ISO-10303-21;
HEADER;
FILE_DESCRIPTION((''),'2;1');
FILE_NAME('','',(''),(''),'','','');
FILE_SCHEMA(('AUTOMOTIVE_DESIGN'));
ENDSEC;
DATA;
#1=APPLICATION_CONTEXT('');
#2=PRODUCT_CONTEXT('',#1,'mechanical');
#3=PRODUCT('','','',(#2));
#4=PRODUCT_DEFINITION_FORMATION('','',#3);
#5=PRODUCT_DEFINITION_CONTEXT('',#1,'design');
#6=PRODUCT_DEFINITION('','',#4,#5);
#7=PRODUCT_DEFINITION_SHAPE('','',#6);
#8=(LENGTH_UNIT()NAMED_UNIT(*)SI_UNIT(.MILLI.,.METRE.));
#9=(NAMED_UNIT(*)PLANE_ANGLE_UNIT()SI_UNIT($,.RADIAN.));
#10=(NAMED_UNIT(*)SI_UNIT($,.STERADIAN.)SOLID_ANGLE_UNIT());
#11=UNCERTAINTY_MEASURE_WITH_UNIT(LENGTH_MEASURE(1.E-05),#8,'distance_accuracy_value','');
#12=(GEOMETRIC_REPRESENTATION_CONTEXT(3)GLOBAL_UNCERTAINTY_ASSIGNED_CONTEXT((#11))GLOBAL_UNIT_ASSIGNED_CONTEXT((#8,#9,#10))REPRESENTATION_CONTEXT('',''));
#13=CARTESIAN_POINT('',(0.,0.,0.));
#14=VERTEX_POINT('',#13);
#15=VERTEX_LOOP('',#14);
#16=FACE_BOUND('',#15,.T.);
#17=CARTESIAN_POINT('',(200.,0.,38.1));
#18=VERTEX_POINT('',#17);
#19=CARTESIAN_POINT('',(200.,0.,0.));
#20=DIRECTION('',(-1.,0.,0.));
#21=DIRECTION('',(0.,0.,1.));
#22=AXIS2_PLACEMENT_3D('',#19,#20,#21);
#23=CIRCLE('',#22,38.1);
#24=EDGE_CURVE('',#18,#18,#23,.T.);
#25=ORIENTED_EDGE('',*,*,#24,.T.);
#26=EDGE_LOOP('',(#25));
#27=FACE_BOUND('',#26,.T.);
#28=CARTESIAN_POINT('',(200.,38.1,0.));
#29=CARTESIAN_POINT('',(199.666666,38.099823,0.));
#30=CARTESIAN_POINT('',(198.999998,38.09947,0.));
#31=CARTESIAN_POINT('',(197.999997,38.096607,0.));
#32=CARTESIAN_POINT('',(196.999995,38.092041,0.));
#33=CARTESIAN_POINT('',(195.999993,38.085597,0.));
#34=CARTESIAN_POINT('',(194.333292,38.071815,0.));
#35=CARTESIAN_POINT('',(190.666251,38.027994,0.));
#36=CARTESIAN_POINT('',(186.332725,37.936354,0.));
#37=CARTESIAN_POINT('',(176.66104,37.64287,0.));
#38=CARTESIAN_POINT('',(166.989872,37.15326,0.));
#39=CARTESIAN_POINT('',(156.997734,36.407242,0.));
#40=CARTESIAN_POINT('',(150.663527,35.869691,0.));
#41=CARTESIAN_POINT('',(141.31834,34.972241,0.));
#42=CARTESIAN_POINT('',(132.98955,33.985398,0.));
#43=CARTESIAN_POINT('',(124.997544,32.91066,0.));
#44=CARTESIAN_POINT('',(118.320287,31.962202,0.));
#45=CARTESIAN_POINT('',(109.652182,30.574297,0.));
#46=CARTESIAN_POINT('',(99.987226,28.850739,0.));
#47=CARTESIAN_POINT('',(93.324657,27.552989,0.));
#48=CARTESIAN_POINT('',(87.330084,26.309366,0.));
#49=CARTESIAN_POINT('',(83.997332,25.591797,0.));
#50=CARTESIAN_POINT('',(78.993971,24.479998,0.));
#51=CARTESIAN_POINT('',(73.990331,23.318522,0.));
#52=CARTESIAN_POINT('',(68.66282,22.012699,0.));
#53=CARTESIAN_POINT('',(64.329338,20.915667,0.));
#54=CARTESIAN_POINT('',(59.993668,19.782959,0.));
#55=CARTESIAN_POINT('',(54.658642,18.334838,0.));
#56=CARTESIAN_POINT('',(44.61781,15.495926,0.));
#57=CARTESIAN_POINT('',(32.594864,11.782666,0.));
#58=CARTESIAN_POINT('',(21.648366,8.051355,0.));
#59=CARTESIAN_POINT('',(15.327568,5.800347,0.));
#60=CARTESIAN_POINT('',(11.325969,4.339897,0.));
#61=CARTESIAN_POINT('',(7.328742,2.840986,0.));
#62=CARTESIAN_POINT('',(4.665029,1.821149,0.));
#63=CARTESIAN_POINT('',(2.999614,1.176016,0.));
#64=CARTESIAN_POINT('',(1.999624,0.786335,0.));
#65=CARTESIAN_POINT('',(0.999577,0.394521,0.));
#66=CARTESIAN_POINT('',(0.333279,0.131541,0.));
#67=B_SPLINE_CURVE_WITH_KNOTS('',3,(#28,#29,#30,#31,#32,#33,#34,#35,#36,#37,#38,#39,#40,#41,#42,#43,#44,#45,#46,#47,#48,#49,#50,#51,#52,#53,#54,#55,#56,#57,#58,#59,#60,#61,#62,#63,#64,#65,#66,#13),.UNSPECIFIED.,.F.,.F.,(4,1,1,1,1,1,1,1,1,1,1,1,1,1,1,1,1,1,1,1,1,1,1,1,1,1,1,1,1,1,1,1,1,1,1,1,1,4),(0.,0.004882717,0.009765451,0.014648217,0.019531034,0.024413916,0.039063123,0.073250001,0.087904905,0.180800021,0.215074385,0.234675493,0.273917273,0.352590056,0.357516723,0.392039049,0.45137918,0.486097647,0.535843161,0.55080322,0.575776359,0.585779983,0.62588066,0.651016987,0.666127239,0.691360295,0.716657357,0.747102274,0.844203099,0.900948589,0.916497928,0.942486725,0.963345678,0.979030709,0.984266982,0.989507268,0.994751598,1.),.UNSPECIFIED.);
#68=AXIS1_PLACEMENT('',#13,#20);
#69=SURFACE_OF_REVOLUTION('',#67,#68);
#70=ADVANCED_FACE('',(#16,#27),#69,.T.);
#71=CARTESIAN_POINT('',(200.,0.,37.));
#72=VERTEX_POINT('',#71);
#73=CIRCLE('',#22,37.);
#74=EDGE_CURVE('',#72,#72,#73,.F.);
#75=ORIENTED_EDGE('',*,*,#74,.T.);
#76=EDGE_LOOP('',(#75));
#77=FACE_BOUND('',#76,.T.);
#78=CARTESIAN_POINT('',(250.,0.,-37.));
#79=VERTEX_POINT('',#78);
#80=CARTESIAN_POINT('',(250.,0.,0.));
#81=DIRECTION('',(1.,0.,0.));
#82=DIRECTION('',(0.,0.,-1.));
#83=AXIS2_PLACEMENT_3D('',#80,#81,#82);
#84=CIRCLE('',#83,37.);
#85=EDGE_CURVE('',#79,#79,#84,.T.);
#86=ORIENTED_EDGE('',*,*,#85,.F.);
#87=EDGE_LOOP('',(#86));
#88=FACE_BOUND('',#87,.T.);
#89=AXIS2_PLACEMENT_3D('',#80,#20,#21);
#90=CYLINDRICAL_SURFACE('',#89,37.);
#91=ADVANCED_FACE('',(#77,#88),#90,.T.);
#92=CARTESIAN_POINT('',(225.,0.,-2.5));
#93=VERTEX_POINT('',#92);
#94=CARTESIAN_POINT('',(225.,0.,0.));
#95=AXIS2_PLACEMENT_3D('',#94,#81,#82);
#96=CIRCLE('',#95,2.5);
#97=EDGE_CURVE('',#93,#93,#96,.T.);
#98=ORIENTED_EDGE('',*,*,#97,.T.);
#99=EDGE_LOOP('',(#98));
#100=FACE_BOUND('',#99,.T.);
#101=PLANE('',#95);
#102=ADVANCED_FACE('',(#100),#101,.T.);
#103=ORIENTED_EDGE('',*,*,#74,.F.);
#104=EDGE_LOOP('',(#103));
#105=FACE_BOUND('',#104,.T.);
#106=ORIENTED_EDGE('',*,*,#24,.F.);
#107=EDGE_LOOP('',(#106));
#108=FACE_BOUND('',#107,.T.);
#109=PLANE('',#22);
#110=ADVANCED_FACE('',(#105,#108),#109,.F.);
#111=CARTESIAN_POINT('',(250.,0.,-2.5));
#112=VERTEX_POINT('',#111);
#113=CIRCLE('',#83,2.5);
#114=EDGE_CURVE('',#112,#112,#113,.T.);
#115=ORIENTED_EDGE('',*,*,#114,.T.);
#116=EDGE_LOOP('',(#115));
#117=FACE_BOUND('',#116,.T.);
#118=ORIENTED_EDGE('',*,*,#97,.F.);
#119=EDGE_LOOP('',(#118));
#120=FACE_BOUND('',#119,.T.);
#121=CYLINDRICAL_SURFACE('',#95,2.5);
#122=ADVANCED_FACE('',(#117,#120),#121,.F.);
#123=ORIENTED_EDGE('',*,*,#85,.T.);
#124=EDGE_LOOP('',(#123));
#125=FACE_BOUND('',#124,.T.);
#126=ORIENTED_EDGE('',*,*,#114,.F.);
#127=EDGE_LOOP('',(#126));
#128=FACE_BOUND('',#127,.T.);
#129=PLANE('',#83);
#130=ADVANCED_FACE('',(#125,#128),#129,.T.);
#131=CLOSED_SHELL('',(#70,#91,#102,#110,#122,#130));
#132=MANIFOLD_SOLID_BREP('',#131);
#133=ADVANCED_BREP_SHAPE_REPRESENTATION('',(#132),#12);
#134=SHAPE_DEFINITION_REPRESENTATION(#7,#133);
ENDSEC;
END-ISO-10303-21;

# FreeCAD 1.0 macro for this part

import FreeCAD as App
import Part
import Sketcher

doc = App.newDocument("Part")
params = doc.addObject("Spreadsheet::Sheet", "Params")
for row, (alias, value) in enumerate([
    ("revolution_angle", "360 deg"),
    ("sketch2_diameter", "74 mm"),
    ("pad1_length", "50 mm"),
    ("sketch3_diameter", "5 mm"),
    ("pocket1_length", "25 mm"),
], start=1):
    params.set(f"A{row}", alias)
    params.set(f"B{row}", "=" + value)
    params.setAlias(f"B{row}", alias)

body = doc.addObject("PartDesign::Body", "Body")

# Sketch on XY plane
sketch1 = body.newObject("Sketcher::SketchObject", "Sketch")
sketch1.AttachmentSupport = (doc.getObject("XY_Plane"), [""])
sketch1.MapMode = "FlatFace"
sketch1.addGeometry([
    Part.LineSegment(App.Vector(0, 0, 0), App.Vector(200, 0, 0)),
    Part.LineSegment(App.Vector(200, 0, 0), App.Vector(200, 38.1, 0)),
    Part.BSplineCurve([App.Vector(0, 0, 0), App.Vector(0.333279, 0.131541, 0), App.Vector(0.999577, 0.394521, 0), App.Vector(1.999624, 0.786335, 0), App.Vector(2.999614, 1.176016, 0), App.Vector(4.665029, 1.821149, 0), App.Vector(7.328742, 2.840986, 0), App.Vector(11.325969, 4.339897, 0), App.Vector(15.327568, 5.800347, 0), App.Vector(21.648366, 8.051355, 0), App.Vector(32.594864, 11.782666, 0), App.Vector(44.61781, 15.495926, 0), App.Vector(54.658642, 18.334838, 0), App.Vector(59.993668, 19.782959, 0), App.Vector(64.329338, 20.915667, 0), App.Vector(68.66282, 22.012699, 0), App.Vector(73.990331, 23.318522, 0), App.Vector(78.993971, 24.479998, 0), App.Vector(83.997332, 25.591797, 0), App.Vector(87.330084, 26.309366, 0), App.Vector(93.324657, 27.552989, 0), App.Vector(99.987226, 28.850739, 0), App.Vector(109.652182, 30.574297, 0), App.Vector(118.320287, 31.962202, 0), App.Vector(124.997544, 32.91066, 0), App.Vector(132.98955, 33.985398, 0), App.Vector(141.31834, 34.972241, 0), App.Vector(150.663527, 35.869691, 0), App.Vector(156.997734, 36.407242, 0), App.Vector(166.989872, 37.15326, 0), App.Vector(176.66104, 37.64287, 0), App.Vector(186.332725, 37.936354, 0), App.Vector(190.666251, 38.027994, 0), App.Vector(194.333292, 38.071815, 0), App.Vector(195.999993, 38.085597, 0), App.Vector(196.999995, 38.092041, 0), App.Vector(197.999997, 38.096607, 0), App.Vector(198.999998, 38.09947, 0), App.Vector(199.666666, 38.099823, 0), App.Vector(200, 38.1, 0)], [4, 1, 1, 1, 1, 1, 1, 1, 1, 1, 1, 1, 1, 1, 1, 1, 1, 1, 1, 1, 1, 1, 1, 1, 1, 1, 1, 1, 1, 1, 1, 1, 1, 1, 1, 1, 1, 4], [0, 0.005248402, 0.010492732, 0.015733018, 0.020969291, 0.036654322, 0.057513275, 0.083502072, 0.099051411, 0.155796901, 0.252897726, 0.283342643, 0.308639705, 0.333872761, 0.348983013, 0.37411934, 0.414220017, 0.424223641, 0.44919678, 0.464156839, 0.513902353, 0.54862082, 0.607960951, 0.642483277, 0.647409944, 0.726082727, 0.765324507, 0.784925615, 0.819199979, 0.912095095, 0.926749999, 0.960936877, 0.975586084, 0.980468966, 0.985351783, 0.990234549, 0.995117283, 1], False, 3, [1, 1, 1, 1, 1, 1, 1, 1, 1, 1, 1, 1, 1, 1, 1, 1, 1, 1, 1, 1, 1, 1, 1, 1, 1, 1, 1, 1, 1, 1, 1, 1, 1, 1, 1, 1, 1, 1, 1, 1], False),
], False)
sketch1.addConstraint([
    Sketcher.Constraint("Block", 2),
    Sketcher.Constraint("Coincident", 0, 2, 1, 1),
    Sketcher.Constraint("Coincident", 1, 2, 2, 2),
    Sketcher.Constraint("Coincident", 2, 1, 0, 1),
    Sketcher.Constraint("Horizontal", 0),
    Sketcher.Constraint("Vertical", 1),
])
revolution = body.newObject("PartDesign::Revolution", "Revolution")
revolution.Profile = sketch1
revolution.ReferenceAxis = (sketch1, ["H_Axis"])
revolution.setExpression("Angle", "Params.revolution_angle")

# Sketch on YZ plane
sketch2 = body.newObject("Sketcher::SketchObject", "Sketch001")
sketch2.AttachmentSupport = (doc.getObject("YZ_Plane"), [""])
sketch2.MapMode = "FlatFace"
sketch2.AttachmentOffset = App.Placement(App.Vector(0, 0, 200), App.Rotation())
sketch2.addGeometry(Part.Circle(App.Vector(0, 0, 0), App.Vector(0, 0, 1), 37), False)
sketch2.addConstraint([
    Sketcher.Constraint("Coincident", 0, 3, -1, 1),
    Sketcher.Constraint("Diameter", 0, 74.0),
])
sketch2.setExpression("Constraints[1]", "Params.sketch2_diameter")
pad1 = body.newObject("PartDesign::Pad", "Pad")
pad1.Profile = sketch2
pad1.setExpression("Length", "Params.pad1_length")

# Sketch on YZ plane
sketch3 = body.newObject("Sketcher::SketchObject", "Sketch002")
sketch3.AttachmentSupport = (doc.getObject("YZ_Plane"), [""])
sketch3.MapMode = "FlatFace"
sketch3.AttachmentOffset = App.Placement(App.Vector(0, 0, 250), App.Rotation())
sketch3.addGeometry(Part.Circle(App.Vector(0, 0, 0), App.Vector(0, 0, 1), 2.5), False)
sketch3.addConstraint([
    Sketcher.Constraint("Coincident", 0, 3, -1, 1),
    Sketcher.Constraint("Diameter", 0, 5.0),
])
sketch3.setExpression("Constraints[1]", "Params.sketch3_diameter")
pocket1 = body.newObject("PartDesign::Pocket", "Pocket")
pocket1.Profile = sketch3
pocket1.setExpression("Length", "Params.pocket1_length")

doc.recompute()
